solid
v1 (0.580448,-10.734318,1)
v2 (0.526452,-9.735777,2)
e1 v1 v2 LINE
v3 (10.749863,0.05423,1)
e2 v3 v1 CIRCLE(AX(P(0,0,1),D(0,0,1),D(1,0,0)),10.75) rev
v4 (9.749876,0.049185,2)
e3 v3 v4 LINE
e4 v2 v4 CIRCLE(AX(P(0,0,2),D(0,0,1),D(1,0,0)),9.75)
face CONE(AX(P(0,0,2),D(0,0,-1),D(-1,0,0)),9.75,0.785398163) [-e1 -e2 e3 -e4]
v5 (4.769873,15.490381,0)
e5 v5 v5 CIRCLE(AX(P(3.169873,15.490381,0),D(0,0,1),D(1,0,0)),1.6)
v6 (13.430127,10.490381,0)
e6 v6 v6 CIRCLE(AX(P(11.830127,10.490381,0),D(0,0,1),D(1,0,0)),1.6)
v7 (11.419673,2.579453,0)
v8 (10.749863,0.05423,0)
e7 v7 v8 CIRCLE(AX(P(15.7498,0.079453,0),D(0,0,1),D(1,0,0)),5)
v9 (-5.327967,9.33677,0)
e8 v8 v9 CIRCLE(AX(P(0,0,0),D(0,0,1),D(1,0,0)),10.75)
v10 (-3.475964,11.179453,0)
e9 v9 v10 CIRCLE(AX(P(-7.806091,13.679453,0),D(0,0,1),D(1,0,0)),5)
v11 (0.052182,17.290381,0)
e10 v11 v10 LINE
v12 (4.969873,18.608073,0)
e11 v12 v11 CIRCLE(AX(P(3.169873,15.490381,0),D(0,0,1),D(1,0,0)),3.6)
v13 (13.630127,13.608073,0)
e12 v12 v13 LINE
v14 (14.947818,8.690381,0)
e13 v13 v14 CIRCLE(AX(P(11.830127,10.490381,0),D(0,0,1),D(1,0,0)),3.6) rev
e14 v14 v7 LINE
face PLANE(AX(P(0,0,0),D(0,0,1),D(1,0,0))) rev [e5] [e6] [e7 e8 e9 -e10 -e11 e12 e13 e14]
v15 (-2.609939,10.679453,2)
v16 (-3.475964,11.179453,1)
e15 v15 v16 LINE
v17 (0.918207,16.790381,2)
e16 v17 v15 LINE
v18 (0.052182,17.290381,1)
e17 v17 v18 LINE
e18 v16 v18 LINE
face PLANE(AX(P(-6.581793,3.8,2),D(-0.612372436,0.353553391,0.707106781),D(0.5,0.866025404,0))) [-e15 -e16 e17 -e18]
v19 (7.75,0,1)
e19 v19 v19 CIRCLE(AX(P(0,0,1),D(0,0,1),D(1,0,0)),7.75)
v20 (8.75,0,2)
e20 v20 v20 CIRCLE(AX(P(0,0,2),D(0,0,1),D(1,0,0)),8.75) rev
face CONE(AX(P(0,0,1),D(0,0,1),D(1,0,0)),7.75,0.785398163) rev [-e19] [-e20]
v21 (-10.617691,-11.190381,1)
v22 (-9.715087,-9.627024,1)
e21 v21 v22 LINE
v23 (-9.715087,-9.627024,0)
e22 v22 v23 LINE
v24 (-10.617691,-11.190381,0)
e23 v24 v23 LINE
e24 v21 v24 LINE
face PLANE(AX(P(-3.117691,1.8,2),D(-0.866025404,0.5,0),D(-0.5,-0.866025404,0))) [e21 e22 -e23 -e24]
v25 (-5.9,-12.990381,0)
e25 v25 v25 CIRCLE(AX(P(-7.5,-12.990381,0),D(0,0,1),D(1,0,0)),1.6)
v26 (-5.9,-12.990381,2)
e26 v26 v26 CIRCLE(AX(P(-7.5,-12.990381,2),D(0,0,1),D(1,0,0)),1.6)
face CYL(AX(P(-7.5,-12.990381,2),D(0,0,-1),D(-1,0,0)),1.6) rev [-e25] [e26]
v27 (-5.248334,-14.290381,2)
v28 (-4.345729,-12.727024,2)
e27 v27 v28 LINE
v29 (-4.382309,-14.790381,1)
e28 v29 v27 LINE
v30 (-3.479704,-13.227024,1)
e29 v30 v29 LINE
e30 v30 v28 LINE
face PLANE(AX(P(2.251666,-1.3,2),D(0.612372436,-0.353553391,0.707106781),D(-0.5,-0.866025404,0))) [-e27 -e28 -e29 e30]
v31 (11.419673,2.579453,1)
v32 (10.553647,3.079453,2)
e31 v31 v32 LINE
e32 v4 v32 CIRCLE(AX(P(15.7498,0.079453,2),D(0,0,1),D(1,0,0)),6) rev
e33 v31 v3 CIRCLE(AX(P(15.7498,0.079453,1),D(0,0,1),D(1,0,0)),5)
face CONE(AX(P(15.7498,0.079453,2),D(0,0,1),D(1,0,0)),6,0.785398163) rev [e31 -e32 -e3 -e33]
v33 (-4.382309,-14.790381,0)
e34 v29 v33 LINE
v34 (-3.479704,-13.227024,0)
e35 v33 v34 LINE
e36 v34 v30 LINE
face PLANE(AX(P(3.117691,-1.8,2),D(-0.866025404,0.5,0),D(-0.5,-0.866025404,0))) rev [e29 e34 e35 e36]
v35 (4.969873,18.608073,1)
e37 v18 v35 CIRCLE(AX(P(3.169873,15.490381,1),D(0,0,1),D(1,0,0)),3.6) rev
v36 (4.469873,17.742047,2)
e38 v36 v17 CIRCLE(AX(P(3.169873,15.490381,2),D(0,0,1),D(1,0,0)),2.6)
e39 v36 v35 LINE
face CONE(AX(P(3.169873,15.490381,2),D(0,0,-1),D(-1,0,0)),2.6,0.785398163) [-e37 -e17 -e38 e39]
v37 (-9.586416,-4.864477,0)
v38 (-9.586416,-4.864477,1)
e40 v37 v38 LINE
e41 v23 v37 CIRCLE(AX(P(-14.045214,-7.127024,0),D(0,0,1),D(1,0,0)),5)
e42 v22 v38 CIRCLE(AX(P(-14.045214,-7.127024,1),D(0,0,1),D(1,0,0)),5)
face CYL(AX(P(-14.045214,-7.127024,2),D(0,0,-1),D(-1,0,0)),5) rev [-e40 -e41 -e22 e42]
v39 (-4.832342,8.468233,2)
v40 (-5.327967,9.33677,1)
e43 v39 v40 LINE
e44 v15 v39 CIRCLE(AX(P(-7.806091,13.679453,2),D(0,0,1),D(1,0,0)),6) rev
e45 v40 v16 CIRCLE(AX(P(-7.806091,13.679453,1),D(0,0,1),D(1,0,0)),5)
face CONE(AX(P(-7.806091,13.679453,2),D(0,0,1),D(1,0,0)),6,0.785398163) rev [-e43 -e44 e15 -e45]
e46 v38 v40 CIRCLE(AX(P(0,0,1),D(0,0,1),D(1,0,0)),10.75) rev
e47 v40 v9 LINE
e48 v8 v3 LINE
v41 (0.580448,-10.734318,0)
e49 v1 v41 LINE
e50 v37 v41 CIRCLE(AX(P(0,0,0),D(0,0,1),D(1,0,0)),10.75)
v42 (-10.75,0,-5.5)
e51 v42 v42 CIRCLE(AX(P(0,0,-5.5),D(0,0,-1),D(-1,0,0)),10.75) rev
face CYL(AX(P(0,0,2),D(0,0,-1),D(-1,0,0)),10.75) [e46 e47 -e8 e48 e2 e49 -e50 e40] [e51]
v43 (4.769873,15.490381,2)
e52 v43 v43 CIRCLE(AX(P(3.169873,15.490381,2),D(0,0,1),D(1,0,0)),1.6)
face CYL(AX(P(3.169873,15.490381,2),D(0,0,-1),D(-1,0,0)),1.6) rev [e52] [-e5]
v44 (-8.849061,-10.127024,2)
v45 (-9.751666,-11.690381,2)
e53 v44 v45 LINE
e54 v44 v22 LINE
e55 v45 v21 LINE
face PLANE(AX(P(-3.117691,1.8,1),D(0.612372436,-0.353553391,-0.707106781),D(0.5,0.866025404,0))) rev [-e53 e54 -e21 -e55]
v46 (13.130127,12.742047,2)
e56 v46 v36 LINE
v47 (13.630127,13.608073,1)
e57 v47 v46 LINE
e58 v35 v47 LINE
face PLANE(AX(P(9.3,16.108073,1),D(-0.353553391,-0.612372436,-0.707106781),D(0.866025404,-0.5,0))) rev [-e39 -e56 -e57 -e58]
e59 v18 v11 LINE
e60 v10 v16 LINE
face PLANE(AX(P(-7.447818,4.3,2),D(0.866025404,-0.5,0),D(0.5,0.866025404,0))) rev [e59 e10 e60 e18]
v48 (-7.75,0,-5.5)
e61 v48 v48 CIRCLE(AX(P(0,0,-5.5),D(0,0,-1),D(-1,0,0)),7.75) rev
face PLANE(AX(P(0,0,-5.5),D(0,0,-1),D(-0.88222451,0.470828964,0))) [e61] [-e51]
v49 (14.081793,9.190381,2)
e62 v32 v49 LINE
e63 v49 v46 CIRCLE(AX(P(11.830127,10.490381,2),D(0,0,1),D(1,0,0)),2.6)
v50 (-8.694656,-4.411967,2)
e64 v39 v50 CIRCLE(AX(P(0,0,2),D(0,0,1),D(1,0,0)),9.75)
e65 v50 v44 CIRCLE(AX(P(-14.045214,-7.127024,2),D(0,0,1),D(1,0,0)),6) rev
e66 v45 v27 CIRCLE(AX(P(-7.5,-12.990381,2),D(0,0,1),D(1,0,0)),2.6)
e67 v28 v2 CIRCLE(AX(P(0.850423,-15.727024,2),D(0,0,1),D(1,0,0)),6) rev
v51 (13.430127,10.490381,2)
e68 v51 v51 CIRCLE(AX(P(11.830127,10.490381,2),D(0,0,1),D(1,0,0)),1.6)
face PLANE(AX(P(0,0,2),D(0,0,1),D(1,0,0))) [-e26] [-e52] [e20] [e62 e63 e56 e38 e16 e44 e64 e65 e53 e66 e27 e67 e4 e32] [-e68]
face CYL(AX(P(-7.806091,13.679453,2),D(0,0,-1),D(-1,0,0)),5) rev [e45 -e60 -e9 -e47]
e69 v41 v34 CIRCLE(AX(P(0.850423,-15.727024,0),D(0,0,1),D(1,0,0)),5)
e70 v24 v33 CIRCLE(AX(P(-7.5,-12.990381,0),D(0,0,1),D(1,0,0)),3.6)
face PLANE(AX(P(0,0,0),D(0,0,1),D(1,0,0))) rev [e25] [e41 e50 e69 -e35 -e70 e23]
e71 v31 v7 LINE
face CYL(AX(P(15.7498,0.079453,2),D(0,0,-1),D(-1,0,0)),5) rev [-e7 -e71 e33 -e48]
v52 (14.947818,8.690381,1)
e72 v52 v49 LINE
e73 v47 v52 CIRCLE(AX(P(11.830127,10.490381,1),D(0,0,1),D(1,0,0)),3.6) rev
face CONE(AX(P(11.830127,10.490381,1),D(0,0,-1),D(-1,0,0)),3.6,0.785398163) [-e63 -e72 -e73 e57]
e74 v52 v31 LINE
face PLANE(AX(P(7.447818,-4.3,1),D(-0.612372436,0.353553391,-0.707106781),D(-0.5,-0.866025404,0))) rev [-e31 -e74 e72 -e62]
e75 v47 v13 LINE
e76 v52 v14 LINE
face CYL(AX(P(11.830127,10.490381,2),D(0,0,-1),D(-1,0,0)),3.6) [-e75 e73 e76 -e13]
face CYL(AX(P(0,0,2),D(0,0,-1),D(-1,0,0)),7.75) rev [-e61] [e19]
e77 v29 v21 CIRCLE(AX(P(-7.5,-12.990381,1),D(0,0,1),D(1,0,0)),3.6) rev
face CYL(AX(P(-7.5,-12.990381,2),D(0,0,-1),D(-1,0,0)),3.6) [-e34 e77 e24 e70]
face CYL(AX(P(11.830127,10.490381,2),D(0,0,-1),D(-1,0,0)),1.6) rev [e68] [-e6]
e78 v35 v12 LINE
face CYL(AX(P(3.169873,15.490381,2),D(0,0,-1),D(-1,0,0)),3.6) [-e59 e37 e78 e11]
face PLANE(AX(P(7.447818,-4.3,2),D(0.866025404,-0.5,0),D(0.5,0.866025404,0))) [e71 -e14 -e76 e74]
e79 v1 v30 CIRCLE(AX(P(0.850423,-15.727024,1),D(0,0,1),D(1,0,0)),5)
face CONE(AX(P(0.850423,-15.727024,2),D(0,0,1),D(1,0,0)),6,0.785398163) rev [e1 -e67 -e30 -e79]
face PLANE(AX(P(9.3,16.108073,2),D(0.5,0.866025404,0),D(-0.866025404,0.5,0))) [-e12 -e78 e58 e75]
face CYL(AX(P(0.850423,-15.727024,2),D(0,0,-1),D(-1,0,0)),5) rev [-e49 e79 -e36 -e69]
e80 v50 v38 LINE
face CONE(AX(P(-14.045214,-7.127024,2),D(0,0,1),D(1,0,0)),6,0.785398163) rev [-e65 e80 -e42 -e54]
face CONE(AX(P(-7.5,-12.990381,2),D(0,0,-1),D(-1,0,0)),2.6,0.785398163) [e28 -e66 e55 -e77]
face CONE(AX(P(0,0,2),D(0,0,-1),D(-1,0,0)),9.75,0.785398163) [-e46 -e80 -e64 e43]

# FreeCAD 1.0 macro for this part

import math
import FreeCAD as App
import Part
import Sketcher

V = App.Vector
Q = App.Units.Quantity


def edges_at(feature, points):
    """Names of the edges that pass closest to the given points."""
    edges = feature.Shape.Edges
    near = lambda p: min(range(len(edges)), key=lambda i: edges[i].distToShape(Part.Vertex(*p))[0])
    return sorted({f"Edge{near(p) + 1}" for p in points})

doc = App.newDocument("Part")
params = doc.addObject("Spreadsheet::Sheet", "Params")
for row, (alias, value) in enumerate([
    ("sketch1_diameter", "3.2 mm"),
    ("sketch1_diameter2", "15.5 mm"),
    ("sketch1_radius", "3.6 mm"),
    ("sketch1_radius2", "10.75 mm"),
    ("sketch1_length", "10 mm"),
    ("pad1_length", "2 mm"),
    ("sketch2_diameter", "21.5 mm"),
    ("sketch2_diameter2", "15.5 mm"),
    ("pad2_length", "5.5 mm"),
    ("fillet_radius", "5 mm"),
    ("chamfer_size", "1 mm"),
], start=1):
    params.set(f"A{row}", alias)
    params.set(f"B{row}", "=" + value)
    params.setAlias(f"B{row}", alias)

body = doc.addObject("PartDesign::Body", "Body")

# Sketch on XY plane
sketch1 = body.newObject("Sketcher::SketchObject", "Sketch")
sketch1.AttachmentSupport = (doc.getObject("XY_Plane"), [""])
sketch1.MapMode = "FlatFace"
sketch1.addGeometry(Part.LineSegment(V(-4.4, -14.8, 0), V(-1.9, -10.6, 0)), False)
sketch1.addGeometry(Part.ArcOfCircle(Part.Circle(V(0, 0, 0), V(0, 0, 1), 10.8), math.radians(-100), math.radians(7)), False)
sketch1.addGeometry(Part.LineSegment(V(10.7, 1.3, 0), V(14.9, 8.7, 0)), False)
sketch1.addGeometry(Part.ArcOfCircle(Part.Circle(V(11.8, 10.5, 0), V(0, 0, 1), 3.6), math.radians(-30), math.radians(60)), False)
sketch1.addGeometry(Part.LineSegment(V(13.6, 13.6, 0), V(5, 18.6, 0)), False)
sketch1.addGeometry(Part.ArcOfCircle(Part.Circle(V(3.2, 15.5, 0), V(0, 0, 1), 3.6), math.radians(60), math.radians(150)), False)
sketch1.addGeometry(Part.LineSegment(V(0.1, 17.3, 0), V(-4.2, 9.9, 0)), False)
sketch1.addGeometry(Part.ArcOfCircle(Part.Circle(V(0, 0, 0), V(0, 0, 1), 10.8), math.radians(113), math.radians(220)), False)
sketch1.addGeometry(Part.LineSegment(V(-8.2, -7, 0), V(-10.6, -11.2, 0)), False)
sketch1.addGeometry(Part.ArcOfCircle(Part.Circle(V(-7.5, -13, 0), V(0, 0, 1), 3.6), math.radians(150), math.radians(330)), False)
sketch1.addGeometry(Part.Circle(V(-7.5, -13, 0), V(0, 0, 1), 1.6), False)
sketch1.addGeometry(Part.Circle(V(0, 0, 0), V(0, 0, 1), 7.8), False)
sketch1.addGeometry(Part.Circle(V(3.2, 15.5, 0), V(0, 0, 1), 1.6), False)
sketch1.addGeometry(Part.Circle(V(11.8, 10.5, 0), V(0, 0, 1), 1.6), False)
sketch1.addConstraint(Sketcher.Constraint("Coincident", 0, 2, 1, 1))
sketch1.addConstraint(Sketcher.Constraint("Coincident", 1, 2, 2, 1))
sketch1.addConstraint(Sketcher.Constraint("Tangent", 2, 2, 3, 1))
sketch1.addConstraint(Sketcher.Constraint("Tangent", 3, 2, 4, 1))
sketch1.addConstraint(Sketcher.Constraint("Tangent", 4, 2, 5, 1))
sketch1.addConstraint(Sketcher.Constraint("Tangent", 5, 2, 6, 1))
sketch1.addConstraint(Sketcher.Constraint("Coincident", 6, 2, 7, 1))
sketch1.addConstraint(Sketcher.Constraint("Coincident", 7, 2, 8, 1))
sketch1.addConstraint(Sketcher.Constraint("Tangent", 8, 2, 9, 1))
sketch1.addConstraint(Sketcher.Constraint("Tangent", 9, 2, 0, 1))
sketch1.addConstraint(Sketcher.Constraint("Coincident", 1, 3, -1, 1))
sketch1.addConstraint(Sketcher.Constraint("Coincident", 7, 3, -1, 1))
sketch1.addConstraint(Sketcher.Constraint("Coincident", 11, 3, -1, 1))
sketch1.addConstraint(Sketcher.Constraint("Coincident", 10, 3, 9, 3))
sketch1.addConstraint(Sketcher.Constraint("Coincident", 12, 3, 5, 3))
sketch1.addConstraint(Sketcher.Constraint("Coincident", 13, 3, 3, 3))
sketch1.addConstraint(Sketcher.Constraint("Equal", 3, 5))
sketch1.addConstraint(Sketcher.Constraint("Equal", 1, 7))
sketch1.addConstraint(Sketcher.Constraint("Equal", 5, 9))
sketch1.addConstraint(Sketcher.Constraint("Equal", 10, 12))
sketch1.addConstraint(Sketcher.Constraint("Equal", 12, 13))
sketch1.addConstraint(Sketcher.Constraint("Parallel", 0, 2))
sketch1.addConstraint(Sketcher.Constraint("Perpendicular", 2, 4))
sketch1.addConstraint(Sketcher.Constraint("Perpendicular", 4, 6))
sketch1.addConstraint(Sketcher.Constraint("Parallel", 6, 8))
sketch1.addConstraint(Sketcher.Constraint("Equal", 2, 6))
sketch1.addConstraint(Sketcher.Constraint("Equal", 0, 8))
sketch1.addConstraint(Sketcher.Constraint("Diameter", 10, Q("3.2 mm")))
sketch1.addConstraint(Sketcher.Constraint("Diameter", 11, Q("15.5 mm")))
sketch1.addConstraint(Sketcher.Constraint("Radius", 3, Q("3.6 mm")))
sketch1.addConstraint(Sketcher.Constraint("Angle", 0, Q("60 deg")))
sketch1.addConstraint(Sketcher.Constraint("Radius", 1, Q("10.75 mm")))
sketch1.addConstraint(Sketcher.Constraint("Distance", 4, Q("10 mm")))
sketch1.addConstraint(Sketcher.Constraint("DistanceX", 9, 3, -1, 1, Q("7.5 mm")))
sketch1.addConstraint(Sketcher.Constraint("Distance", 2, Q("8.55 mm")))
sketch1.setExpression("Constraints[27]", "Params.sketch1_diameter")
sketch1.setExpression("Constraints[28]", "Params.sketch1_diameter2")
sketch1.setExpression("Constraints[29]", "Params.sketch1_radius")
sketch1.setExpression("Constraints[31]", "Params.sketch1_radius2")
sketch1.setExpression("Constraints[32]", "Params.sketch1_length")
pad1 = body.newObject("PartDesign::Pad", "Pad")
pad1.Profile = sketch1
pad1.setExpression("Length", "Params.pad1_length")

# Sketch on XY plane
sketch2 = body.newObject("Sketcher::SketchObject", "Sketch001")
sketch2.AttachmentSupport = (doc.getObject("XY_Plane"), [""])
sketch2.MapMode = "FlatFace"
sketch2.addGeometry(Part.Circle(V(0, 0, 0), V(0, 0, 1), 11), False)
sketch2.addGeometry(Part.Circle(V(0, 0, 0), V(0, 0, 1), 8), False)
sketch2.addConstraint(Sketcher.Constraint("Coincident", 0, 3, -1, 1))
sketch2.addConstraint(Sketcher.Constraint("Coincident", 1, 3, -1, 1))
sketch2.addConstraint(Sketcher.Constraint("Diameter", 0, Q("21.5 mm")))
sketch2.addConstraint(Sketcher.Constraint("Diameter", 1, Q("15.5 mm")))
sketch2.setExpression("Constraints[2]", "Params.sketch2_diameter")
sketch2.setExpression("Constraints[3]", "Params.sketch2_diameter2")
pad2 = body.newObject("PartDesign::Pad", "Pad001")
pad2.Profile = sketch2
pad2.setExpression("Length", "Params.pad2_length")
pad2.Reversed = True
doc.recompute()

fillet = body.newObject("PartDesign::Fillet", "Fillet")
fillet.Base = (pad2, edges_at(pad2, [
    (-8.182, -6.972, 1),
    (-4.223, 9.886, 1),
    (10.673, 1.286, 1),
    (-1.947, -10.572, 1),
]))
fillet.setExpression("Radius", "Params.fillet_radius")
doc.recompute()

chamfer = body.newObject("PartDesign::Chamfer", "Chamfer")
chamfer.Base = (fillet, edges_at(fillet, [
    (-10.166, -10.409, 2),
    (-9.3, -16.108, 2),
    (-3.931, -14.009, 2),
    (13.184, 5.635, 2),
    (15.307, 11.422, 2),
    (9.3, 16.108, 2),
    (2.238, 18.968, 2),
    (-1.712, 14.235, 2),
    (7.823, -7.374, 2),
    (-10.297, 3.088, 2),
    (-7.75, 0, 2),
    (-4.279, 10.135, 2),
    (-9.047, -7.262, 2),
    (-1.766, -11.466, 2),
    (10.917, 1.361, 2),
]))
chamfer.setExpression("Size", "Params.chamfer_size")

doc.recompute()
